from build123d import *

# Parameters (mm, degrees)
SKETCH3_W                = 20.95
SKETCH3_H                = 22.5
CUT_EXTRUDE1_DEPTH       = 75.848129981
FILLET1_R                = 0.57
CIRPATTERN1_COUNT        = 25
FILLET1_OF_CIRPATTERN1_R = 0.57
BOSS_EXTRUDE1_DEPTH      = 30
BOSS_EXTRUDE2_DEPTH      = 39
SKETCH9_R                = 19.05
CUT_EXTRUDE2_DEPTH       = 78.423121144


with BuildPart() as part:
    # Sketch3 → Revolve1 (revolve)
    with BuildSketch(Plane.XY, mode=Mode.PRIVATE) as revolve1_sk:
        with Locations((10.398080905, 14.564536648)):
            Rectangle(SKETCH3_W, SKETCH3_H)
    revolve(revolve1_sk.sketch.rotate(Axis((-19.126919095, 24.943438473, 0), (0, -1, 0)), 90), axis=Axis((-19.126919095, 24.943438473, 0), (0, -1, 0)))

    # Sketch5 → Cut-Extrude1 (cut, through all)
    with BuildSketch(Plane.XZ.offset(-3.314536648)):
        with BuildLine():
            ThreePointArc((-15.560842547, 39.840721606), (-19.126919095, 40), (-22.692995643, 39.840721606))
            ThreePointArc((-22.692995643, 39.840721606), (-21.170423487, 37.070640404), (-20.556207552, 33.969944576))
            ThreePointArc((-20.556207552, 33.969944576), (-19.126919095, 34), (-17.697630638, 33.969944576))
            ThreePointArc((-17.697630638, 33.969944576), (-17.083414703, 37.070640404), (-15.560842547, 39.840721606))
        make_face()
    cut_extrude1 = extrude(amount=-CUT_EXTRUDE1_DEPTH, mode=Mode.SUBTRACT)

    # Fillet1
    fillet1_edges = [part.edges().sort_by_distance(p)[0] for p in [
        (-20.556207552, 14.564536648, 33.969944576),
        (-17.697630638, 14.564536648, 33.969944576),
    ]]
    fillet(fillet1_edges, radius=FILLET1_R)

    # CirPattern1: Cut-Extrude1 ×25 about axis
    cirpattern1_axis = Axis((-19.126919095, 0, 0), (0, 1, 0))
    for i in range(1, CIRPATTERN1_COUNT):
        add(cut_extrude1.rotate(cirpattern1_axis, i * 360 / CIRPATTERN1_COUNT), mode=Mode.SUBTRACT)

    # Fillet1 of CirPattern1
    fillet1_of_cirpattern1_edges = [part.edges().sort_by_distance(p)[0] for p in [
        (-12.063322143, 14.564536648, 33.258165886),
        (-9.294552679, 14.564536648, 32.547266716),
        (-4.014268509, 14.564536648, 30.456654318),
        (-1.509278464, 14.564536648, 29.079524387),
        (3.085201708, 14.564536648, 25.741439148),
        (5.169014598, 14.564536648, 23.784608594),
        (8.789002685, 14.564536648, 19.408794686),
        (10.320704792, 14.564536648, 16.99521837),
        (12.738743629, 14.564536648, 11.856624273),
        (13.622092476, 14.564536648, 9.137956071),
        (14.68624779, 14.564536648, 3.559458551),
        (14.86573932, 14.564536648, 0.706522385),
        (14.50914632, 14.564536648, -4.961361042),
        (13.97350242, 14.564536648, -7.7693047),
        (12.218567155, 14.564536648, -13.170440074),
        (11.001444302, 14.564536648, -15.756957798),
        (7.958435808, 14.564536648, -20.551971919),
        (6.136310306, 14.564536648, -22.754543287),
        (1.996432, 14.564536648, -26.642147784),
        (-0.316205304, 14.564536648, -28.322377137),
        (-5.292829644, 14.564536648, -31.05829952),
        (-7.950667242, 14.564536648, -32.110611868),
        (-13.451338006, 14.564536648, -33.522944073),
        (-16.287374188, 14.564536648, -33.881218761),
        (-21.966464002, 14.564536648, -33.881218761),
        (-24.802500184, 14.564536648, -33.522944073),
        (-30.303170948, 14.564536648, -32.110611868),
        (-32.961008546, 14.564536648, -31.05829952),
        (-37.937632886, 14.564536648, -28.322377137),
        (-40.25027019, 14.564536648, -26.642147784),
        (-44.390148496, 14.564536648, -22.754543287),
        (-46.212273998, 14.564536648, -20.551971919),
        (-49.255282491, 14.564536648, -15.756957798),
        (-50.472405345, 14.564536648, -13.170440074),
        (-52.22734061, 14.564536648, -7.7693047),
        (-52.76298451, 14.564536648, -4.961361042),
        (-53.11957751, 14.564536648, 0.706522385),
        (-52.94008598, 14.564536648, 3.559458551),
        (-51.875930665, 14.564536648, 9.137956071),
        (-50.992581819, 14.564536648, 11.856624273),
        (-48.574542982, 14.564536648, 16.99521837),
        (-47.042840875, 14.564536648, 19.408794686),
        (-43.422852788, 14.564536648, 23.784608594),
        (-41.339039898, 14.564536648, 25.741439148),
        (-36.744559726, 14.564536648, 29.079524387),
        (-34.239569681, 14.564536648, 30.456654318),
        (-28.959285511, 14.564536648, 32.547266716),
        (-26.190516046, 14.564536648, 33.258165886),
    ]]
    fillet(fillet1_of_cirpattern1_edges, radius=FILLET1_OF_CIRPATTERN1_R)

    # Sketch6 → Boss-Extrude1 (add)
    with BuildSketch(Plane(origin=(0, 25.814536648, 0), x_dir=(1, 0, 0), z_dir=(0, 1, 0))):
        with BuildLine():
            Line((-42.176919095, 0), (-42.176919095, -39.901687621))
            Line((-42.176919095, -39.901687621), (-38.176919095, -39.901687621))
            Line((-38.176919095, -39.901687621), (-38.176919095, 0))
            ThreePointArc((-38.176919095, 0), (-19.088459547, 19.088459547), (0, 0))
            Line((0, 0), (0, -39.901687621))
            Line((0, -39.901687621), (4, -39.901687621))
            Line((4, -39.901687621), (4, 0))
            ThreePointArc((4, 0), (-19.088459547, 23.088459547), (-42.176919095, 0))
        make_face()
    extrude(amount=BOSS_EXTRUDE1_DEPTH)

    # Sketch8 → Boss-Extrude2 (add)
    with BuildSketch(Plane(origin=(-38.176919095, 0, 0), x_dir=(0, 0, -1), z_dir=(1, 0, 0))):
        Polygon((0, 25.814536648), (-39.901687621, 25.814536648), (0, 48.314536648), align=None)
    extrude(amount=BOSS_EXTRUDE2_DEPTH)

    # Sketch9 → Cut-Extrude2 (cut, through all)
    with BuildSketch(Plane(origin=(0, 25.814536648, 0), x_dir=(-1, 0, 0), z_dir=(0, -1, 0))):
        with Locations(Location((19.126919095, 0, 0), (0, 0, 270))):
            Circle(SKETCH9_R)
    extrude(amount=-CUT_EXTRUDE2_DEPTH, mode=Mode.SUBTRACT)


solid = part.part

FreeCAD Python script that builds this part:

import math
import FreeCAD as App
import Part
import Sketcher

V = App.Vector
Q = App.Units.Quantity


def edges_at(feature, points):
    """Names of the edges that pass closest to the given points."""
    edges = feature.Shape.Edges
    near = lambda p: min(range(len(edges)), key=lambda i: edges[i].distToShape(Part.Vertex(*p))[0])
    return sorted({f"Edge{near(p) + 1}" for p in points})


def add_polygon(sketch, points):
    """Adds a closed chain of lines whose ends are joined by coincident constraints."""
    first, n = sketch.GeometryCount, len(points)
    for a, b in zip(points, points[1:] + points[:1]):
        sketch.addGeometry(Part.LineSegment(App.Vector(*a, 0), App.Vector(*b, 0)), False)
    for i in range(n):
        sketch.addConstraint(Sketcher.Constraint("Coincident", first + i, 2, first + (i + 1) % n, 1))

doc = App.newDocument("Part")
body = doc.addObject("PartDesign::Body", "Body")

sketch1 = body.newObject("Sketcher::SketchObject", "Sketch")
sketch1.AttachmentSupport = (doc.getObject("XY_Plane"), [""])
sketch1.MapMode = "FlatFace"
add_polygon(sketch1, [(0, 26), (0, 3), (21, 3), (21, 26)])
sketch1.addGeometry(Part.LineSegment(V(-19, 26, 0), V(-19, 3, 0)), True)
sketch1.addConstraint([
    Sketcher.Constraint("Vertical", 0),
    Sketcher.Constraint("Horizontal", 1),
    Sketcher.Constraint("Vertical", 2),
    Sketcher.Constraint("Horizontal", 3),
    Sketcher.Constraint("Vertical", 4),
    Sketcher.Constraint("Horizontal", 3, 2, 4, 1),
    Sketcher.Constraint("Horizontal", 1, 2, 4, 2),
    Sketcher.Constraint("DistanceY", 0, 2, 0, 1, Q("22.5 mm")),
    Sketcher.Constraint("DistanceX", 4, 1, 2, 2, Q("40 mm")),
    Sketcher.Constraint("DistanceX", 1, 1, 1, 2, Q("20.95 mm")),
    Sketcher.Constraint("DistanceX", 0, 2, -1, 1, Q("0.076919 mm")),
    Sketcher.Constraint("DistanceY", -1, 1, 0, 2, Q("3.314537 mm")),
])
revolution = body.newObject("PartDesign::Revolution", "Revolution")
revolution.Profile = sketch1
revolution.ReferenceAxis = (sketch1, ["Axis0"])
revolution.Angle = 360

sketch2 = body.newObject("Sketcher::SketchObject", "Sketch001")
sketch2.AttachmentSupport = (doc.getObject("XZ_Plane"), [""])
sketch2.MapMode = "FlatFace"
sketch2.AttachmentOffset = App.Placement(V(0, 0, -3.314537), App.Rotation())
sketch2.addGeometry([
    Part.ArcOfCircle(Part.Circle(V(-19.1, 0, 0), V(0, 0, 1), 40), math.radians(84.89), math.radians(95.11)),
    Part.ArcOfCircle(Part.Circle(V(-30.9, 33.5, 0), V(0, 0, 1), 10.3), math.radians(2), math.radians(38)),
    Part.ArcOfCircle(Part.Circle(V(-19.1, 0, 0), V(0, 0, 1), 34), math.radians(87.59), math.radians(92.41)),
    Part.ArcOfCircle(Part.Circle(V(-7.4, 33.5, 0), V(0, 0, 1), 10.3), math.radians(142), math.radians(178)),
], False)
sketch2.addConstraint([
    Sketcher.Constraint("Coincident", 0, 2, 1, 2),
    Sketcher.Constraint("Coincident", 1, 1, 2, 2),
    Sketcher.Constraint("Coincident", 2, 1, 3, 2),
    Sketcher.Constraint("Coincident", 3, 1, 0, 1),
    Sketcher.Constraint("Coincident", 2, 3, 0, 3),
    Sketcher.Constraint("Equal", 1, 3),
    Sketcher.Constraint("PointOnObject", 0, 3, -1),
    Sketcher.Constraint("Horizontal", 1, 3, 3, 3),
    Sketcher.Constraint("Horizontal", 1, 1, 2, 1),
    Sketcher.Constraint("Radius", 0, Q("40 mm")),
    Sketcher.Constraint("Radius", 2, Q("34 mm")),
    Sketcher.Constraint("Radius", 1, Q("10.336264 mm")),
    Sketcher.Constraint("DistanceX", 0, 3, -1, 1, Q("19.126919 mm")),
    Sketcher.Constraint("DistanceY", -1, 1, 1, 3, Q("33.53543 mm")),
    Sketcher.Constraint("DistanceY", -1, 1, 0, 2, Q("39.840722 mm")),
])
pocket1 = body.newObject("PartDesign::Pocket", "Pocket")
pocket1.Profile = sketch2
pocket1.Type = "ThroughAll"
doc.recompute()

fillet = body.newObject("PartDesign::Fillet", "Fillet")
fillet.Base = (pocket1, edges_at(pocket1, [(-20.556, 14.565, 33.97), (-17.698, 14.565, 33.97)]))
fillet.Radius = 0.57
doc.recompute()

datumline = body.newObject("PartDesign::Line", "DatumLine")
datumline.Placement = App.Placement(V(-19.126919, 0, 0), App.Rotation(V(0, 0, 1), V(0, 1, 0)))
polarpattern = body.newObject("PartDesign::PolarPattern", "PolarPattern")
polarpattern.Originals = [pocket1]
polarpattern.Axis = (datumline, [""])
polarpattern.Angle = 360
polarpattern.Occurrences = 25
body.Tip = polarpattern
doc.recompute()

fillet2 = body.newObject("PartDesign::Fillet", "Fillet001")
fillet2.Base = (polarpattern, edges_at(polarpattern, [
    (-12.063, 14.565, 33.258),
    (-9.295, 14.565, 32.547),
    (-4.014, 14.565, 30.457),
    (-1.509, 14.565, 29.08),
    (3.085, 14.565, 25.741),
    (5.169, 14.565, 23.785),
    (8.789, 14.565, 19.409),
    (10.321, 14.565, 16.995),
    (12.739, 14.565, 11.857),
    (13.622, 14.565, 9.138),
    (14.686, 14.565, 3.559),
    (14.866, 14.565, 0.707),
    (14.509, 14.565, -4.961),
    (13.974, 14.565, -7.769),
    (12.219, 14.565, -13.17),
    (11.001, 14.565, -15.757),
    (7.958, 14.565, -20.552),
    (6.136, 14.565, -22.755),
    (1.996, 14.565, -26.642),
    (-0.316, 14.565, -28.322),
    (-5.293, 14.565, -31.058),
    (-7.951, 14.565, -32.111),
    (-13.451, 14.565, -33.523),
    (-16.287, 14.565, -33.881),
    (-21.966, 14.565, -33.881),
    (-24.803, 14.565, -33.523),
    (-30.303, 14.565, -32.111),
    (-32.961, 14.565, -31.058),
    (-37.938, 14.565, -28.322),
    (-40.25, 14.565, -26.642),
    (-44.39, 14.565, -22.755),
    (-46.212, 14.565, -20.552),
    (-49.255, 14.565, -15.757),
    (-50.472, 14.565, -13.17),
    (-52.227, 14.565, -7.769),
    (-52.763, 14.565, -4.961),
    (-53.12, 14.565, 0.707),
    (-52.94, 14.565, 3.559),
    (-51.876, 14.565, 9.138),
    (-50.993, 14.565, 11.857),
    (-48.575, 14.565, 16.995),
    (-47.043, 14.565, 19.409),
    (-43.423, 14.565, 23.785),
    (-41.339, 14.565, 25.741),
    (-36.745, 14.565, 29.08),
    (-34.24, 14.565, 30.457),
    (-28.959, 14.565, 32.547),
    (-26.191, 14.565, 33.258),
]))
fillet2.Radius = 0.57

sketch3 = body.newObject("Sketcher::SketchObject", "Sketch002")
sketch3.AttachmentSupport = (doc.getObject("XZ_Plane"), [""])
sketch3.MapMode = "FlatFace"
sketch3.AttachmentOffset = App.Placement(V(0, 0, -25.814537), App.Rotation())
sketch3.addGeometry([
    Part.LineSegment(V(-42.2, 0, 0), V(-42.2, 39.9, 0)),
    Part.LineSegment(V(-42.2, 39.9, 0), V(-38.2, 39.9, 0)),
    Part.LineSegment(V(-38.2, 39.9, 0), V(-38.2, 0, 0)),
    Part.ArcOfCircle(Part.Circle(V(-19.1, 0, 0), V(0, 0, 1), 19.1), math.radians(-180), math.radians(0)),
    Part.LineSegment(V(0, 0, 0), V(0, 39.9, 0)),
    Part.LineSegment(V(0, 39.9, 0), V(4, 39.9, 0)),
    Part.LineSegment(V(4, 39.9, 0), V(4, 0, 0)),
    Part.ArcOfCircle(Part.Circle(V(-19.1, 0, 0), V(0, 0, 1), 23.1), math.radians(-180), math.radians(0)),
], False)
sketch3.addConstraint([
    Sketcher.Constraint("Coincident", 0, 2, 1, 1),
    Sketcher.Constraint("Coincident", 1, 2, 2, 1),
    Sketcher.Constraint("Tangent", 2, 2, 3, 1),
    Sketcher.Constraint("Tangent", 3, 2, 4, 1),
    Sketcher.Constraint("Coincident", 4, 2, 5, 1),
    Sketcher.Constraint("Coincident", 5, 2, 6, 1),
    Sketcher.Constraint("Tangent", 6, 2, 7, 2),
    Sketcher.Constraint("Tangent", 7, 1, 0, 1),
    Sketcher.Constraint("Vertical", 0),
    Sketcher.Constraint("Horizontal", 1),
    Sketcher.Constraint("Vertical", 2),
    Sketcher.Constraint("Vertical", 4),
    Sketcher.Constraint("Horizontal", 5),
    Sketcher.Constraint("Vertical", 6),
    Sketcher.Constraint("Coincident", 3, 2, -1, 1),
    Sketcher.Constraint("Coincident", 7, 3, 3, 3),
    Sketcher.Constraint("Horizontal", 1, 2, 4, 2),
    Sketcher.Constraint("DistanceX", 1, 1, 1, 2, Q("4 mm")),
    Sketcher.Constraint("Radius", 3, Q("19.08846 mm")),
    Sketcher.Constraint("DistanceY", 0, 1, 0, 2, Q("39.901688 mm")),
])
pad1 = body.newObject("PartDesign::Pad", "Pad")
pad1.Profile = sketch3
pad1.Length = 30
pad1.Reversed = True

sketch4 = body.newObject("Sketcher::SketchObject", "Sketch003")
sketch4.AttachmentSupport = (doc.getObject("YZ_Plane"), [""])
sketch4.MapMode = "FlatFace"
sketch4.AttachmentOffset = App.Placement(V(0, 0, -38.176919), App.Rotation())
add_polygon(sketch4, [(26, 40), (26, 0), (48, 0)])
sketch4.addConstraint([
    Sketcher.Constraint("Vertical", 0),
    Sketcher.Constraint("Horizontal", 1),
    Sketcher.Constraint("PointOnObject", 0, 2, -1),
    Sketcher.Constraint("DistanceX", 1, 1, 1, 2, Q("22.5 mm")),
    Sketcher.Constraint("Distance", 2, Q("45.808238 mm")),
    Sketcher.Constraint("DistanceX", -1, 1, 0, 2, Q("25.814537 mm")),
])
pad2 = body.newObject("PartDesign::Pad", "Pad001")
pad2.Profile = sketch4
pad2.Length = 39

sketch5 = body.newObject("Sketcher::SketchObject", "Sketch004")
sketch5.AttachmentSupport = (doc.getObject("XZ_Plane"), [""])
sketch5.MapMode = "FlatFace"
sketch5.AttachmentOffset = App.Placement(V(0, 0, -25.814537), App.Rotation())
sketch5.addGeometry(Part.Circle(V(-19, 0, 0), V(0, 0, 1), 19), False)
sketch5.addConstraint([
    Sketcher.Constraint("PointOnObject", 0, 3, -1),
    Sketcher.Constraint("Diameter", 0, Q("38.1 mm")),
    Sketcher.Constraint("DistanceX", 0, 3, -1, 1, Q("19.126919 mm")),
])
pocket2 = body.newObject("PartDesign::Pocket", "Pocket001")
pocket2.Profile = sketch5
pocket2.Type = "ThroughAll"

doc.recompute()
